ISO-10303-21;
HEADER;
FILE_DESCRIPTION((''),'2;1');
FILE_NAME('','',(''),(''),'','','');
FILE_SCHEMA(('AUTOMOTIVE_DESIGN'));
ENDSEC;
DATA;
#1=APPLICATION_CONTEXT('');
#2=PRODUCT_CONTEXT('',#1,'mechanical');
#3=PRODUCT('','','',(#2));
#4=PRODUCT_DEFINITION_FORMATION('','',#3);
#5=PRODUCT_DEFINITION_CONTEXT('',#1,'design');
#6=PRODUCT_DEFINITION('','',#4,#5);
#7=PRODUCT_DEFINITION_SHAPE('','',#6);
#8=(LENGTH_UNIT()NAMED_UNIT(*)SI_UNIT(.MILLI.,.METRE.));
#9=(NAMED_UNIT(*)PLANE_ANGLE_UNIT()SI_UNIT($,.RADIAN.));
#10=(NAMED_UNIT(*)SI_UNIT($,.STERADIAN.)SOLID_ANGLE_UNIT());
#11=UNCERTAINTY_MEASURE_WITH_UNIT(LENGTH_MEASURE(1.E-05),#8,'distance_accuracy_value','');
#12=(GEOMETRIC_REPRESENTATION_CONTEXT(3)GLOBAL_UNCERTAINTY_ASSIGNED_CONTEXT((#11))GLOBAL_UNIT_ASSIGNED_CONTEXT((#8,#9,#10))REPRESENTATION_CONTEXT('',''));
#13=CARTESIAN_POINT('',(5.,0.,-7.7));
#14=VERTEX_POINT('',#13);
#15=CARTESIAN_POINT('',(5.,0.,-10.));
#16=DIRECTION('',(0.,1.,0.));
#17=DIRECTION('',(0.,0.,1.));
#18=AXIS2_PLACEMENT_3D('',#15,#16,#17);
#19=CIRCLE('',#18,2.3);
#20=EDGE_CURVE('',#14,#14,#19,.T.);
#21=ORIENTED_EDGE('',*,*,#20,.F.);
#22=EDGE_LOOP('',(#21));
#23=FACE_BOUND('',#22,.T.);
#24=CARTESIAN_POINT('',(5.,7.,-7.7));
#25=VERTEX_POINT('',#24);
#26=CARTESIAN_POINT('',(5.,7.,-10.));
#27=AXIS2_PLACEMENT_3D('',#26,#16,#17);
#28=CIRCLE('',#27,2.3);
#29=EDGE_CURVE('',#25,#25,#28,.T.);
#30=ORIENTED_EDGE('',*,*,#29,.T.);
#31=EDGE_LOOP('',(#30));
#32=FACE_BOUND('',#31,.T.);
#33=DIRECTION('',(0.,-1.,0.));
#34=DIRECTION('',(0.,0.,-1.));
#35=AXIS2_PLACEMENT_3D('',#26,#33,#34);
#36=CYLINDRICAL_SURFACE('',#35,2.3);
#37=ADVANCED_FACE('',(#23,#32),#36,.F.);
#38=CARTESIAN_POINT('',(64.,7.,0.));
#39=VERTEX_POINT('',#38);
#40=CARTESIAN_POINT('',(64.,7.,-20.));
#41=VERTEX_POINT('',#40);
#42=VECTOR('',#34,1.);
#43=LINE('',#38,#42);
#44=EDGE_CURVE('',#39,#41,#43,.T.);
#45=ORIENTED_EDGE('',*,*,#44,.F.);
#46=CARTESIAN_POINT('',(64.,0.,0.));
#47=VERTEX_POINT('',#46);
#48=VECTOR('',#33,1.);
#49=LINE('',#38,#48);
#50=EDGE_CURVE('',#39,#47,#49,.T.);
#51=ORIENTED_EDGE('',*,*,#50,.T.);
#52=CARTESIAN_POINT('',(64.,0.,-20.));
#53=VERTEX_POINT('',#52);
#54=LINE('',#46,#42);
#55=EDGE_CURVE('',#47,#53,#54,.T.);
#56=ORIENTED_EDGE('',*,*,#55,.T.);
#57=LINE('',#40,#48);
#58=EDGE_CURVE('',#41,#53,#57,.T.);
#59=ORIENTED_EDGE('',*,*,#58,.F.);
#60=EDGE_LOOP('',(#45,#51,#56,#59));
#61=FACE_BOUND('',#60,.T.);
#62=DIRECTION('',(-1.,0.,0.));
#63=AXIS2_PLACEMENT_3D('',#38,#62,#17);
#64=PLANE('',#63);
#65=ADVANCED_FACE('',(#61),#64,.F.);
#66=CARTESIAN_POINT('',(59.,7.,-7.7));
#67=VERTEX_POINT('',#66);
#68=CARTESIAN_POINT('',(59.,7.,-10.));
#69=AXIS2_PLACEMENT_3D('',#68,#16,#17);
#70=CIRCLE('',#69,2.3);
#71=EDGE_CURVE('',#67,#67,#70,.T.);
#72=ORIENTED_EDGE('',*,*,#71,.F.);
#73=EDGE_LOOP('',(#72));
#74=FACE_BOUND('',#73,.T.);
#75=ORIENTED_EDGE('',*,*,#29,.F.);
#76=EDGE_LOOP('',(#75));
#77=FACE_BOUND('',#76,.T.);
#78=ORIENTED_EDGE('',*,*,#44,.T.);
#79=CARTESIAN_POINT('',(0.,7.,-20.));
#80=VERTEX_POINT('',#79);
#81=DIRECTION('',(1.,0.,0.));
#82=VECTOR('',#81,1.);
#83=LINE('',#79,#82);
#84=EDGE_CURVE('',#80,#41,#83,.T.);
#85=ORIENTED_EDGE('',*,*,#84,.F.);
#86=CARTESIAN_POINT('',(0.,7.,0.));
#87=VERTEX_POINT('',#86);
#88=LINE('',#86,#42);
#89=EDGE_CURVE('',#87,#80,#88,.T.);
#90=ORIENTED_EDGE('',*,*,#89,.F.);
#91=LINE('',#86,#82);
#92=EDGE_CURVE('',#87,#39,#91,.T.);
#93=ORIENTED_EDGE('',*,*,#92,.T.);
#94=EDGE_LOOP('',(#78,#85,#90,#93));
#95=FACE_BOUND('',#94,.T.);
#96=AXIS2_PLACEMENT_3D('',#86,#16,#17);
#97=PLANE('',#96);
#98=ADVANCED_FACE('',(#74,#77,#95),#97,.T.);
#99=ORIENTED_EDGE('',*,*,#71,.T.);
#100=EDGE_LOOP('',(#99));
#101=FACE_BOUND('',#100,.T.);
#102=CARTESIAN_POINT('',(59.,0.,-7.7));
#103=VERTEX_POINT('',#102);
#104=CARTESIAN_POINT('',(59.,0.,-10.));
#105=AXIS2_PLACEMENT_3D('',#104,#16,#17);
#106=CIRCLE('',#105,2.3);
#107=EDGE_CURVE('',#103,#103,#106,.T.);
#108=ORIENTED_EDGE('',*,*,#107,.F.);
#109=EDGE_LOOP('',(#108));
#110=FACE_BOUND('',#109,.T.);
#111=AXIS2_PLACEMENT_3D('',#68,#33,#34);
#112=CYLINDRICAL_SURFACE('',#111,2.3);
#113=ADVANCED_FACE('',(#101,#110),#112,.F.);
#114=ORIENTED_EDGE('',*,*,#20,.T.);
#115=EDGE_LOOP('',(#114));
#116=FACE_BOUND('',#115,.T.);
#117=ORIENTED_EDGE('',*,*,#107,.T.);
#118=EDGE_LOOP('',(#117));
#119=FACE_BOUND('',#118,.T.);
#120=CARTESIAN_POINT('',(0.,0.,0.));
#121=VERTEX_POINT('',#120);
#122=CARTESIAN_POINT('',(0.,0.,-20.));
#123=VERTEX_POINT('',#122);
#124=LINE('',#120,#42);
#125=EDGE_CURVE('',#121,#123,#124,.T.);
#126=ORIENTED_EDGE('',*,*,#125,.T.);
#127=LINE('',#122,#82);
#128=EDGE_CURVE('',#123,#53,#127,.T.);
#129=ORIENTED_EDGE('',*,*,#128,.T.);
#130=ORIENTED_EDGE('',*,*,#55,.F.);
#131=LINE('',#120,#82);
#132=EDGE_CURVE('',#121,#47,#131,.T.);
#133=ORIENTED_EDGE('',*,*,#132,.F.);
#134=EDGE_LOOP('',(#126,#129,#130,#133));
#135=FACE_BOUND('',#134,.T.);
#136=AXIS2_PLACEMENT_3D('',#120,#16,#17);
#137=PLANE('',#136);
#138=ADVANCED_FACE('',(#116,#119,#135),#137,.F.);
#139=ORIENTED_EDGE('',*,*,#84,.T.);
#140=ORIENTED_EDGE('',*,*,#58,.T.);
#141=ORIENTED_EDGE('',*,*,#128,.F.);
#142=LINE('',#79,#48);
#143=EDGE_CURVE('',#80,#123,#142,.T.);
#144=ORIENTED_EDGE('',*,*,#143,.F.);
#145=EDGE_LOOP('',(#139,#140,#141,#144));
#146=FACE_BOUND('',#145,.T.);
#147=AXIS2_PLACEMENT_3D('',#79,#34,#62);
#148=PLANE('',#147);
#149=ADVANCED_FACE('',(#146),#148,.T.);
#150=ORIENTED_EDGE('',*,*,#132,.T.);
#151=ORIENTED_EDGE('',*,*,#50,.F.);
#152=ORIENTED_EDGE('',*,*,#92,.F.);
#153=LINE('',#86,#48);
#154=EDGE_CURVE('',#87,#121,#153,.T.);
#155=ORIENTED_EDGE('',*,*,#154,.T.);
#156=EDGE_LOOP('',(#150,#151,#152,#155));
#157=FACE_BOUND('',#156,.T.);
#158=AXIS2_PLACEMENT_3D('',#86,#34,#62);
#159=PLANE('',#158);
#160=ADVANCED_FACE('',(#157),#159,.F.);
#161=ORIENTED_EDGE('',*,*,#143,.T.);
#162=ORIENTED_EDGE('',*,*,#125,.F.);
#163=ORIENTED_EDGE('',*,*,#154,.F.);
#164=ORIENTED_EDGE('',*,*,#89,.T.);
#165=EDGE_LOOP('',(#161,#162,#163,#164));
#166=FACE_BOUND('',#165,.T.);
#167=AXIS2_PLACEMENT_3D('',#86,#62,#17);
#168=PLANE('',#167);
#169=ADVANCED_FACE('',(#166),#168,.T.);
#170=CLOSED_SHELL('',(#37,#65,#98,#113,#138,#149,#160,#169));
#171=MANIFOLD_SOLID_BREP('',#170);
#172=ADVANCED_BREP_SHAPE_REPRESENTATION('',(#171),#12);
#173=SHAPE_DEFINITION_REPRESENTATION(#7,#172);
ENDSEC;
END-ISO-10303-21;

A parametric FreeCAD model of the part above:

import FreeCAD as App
import Part
import Sketcher

V = App.Vector


def add_polygon(sketch, points):
    """Adds a closed chain of lines whose ends are joined by coincident constraints."""
    first, n = sketch.GeometryCount, len(points)
    for a, b in zip(points, points[1:] + points[:1]):
        sketch.addGeometry(Part.LineSegment(App.Vector(*a, 0), App.Vector(*b, 0)), False)
    for i in range(n):
        sketch.addConstraint(Sketcher.Constraint("Coincident", first + i, 2, first + (i + 1) % n, 1))

doc = App.newDocument("Part")
params = doc.addObject("Spreadsheet::Sheet", "Params")
for row, (alias, value) in enumerate([
    ("sketch1_diameter", "4.6 mm"),
    ("sketch1_width", "64 mm"),
    ("sketch1_height", "20 mm"),
    ("pad1_length", "7 mm"),
], start=1):
    params.set(f"A{row}", alias)
    params.set(f"B{row}", "=" + value)
    params.setAlias(f"B{row}", alias)

body = doc.addObject("PartDesign::Body", "Body")

sketch1 = body.newObject("Sketcher::SketchObject", "Sketch")
sketch1.AttachmentSupport = (doc.getObject("XZ_Plane"), [""])
sketch1.MapMode = "FlatFace"
add_polygon(sketch1, [(0, -20), (0, 0), (64, 0), (64, -20)])
sketch1.addGeometry(Part.Circle(V(5, -10, 0), V(0, 0, 1), 2.3), False)
sketch1.addGeometry(Part.Circle(V(59, -10, 0), V(0, 0, 1), 2.3), False)
sketch1.addConstraint([
    Sketcher.Constraint("Vertical", 0),
    Sketcher.Constraint("Horizontal", 1),
    Sketcher.Constraint("Vertical", 2),
    Sketcher.Constraint("Horizontal", 3),
    Sketcher.Constraint("Coincident", 0, 2, -1, 1),
    Sketcher.Constraint("Equal", 4, 5),
    Sketcher.Constraint("Horizontal", 4, 3, 5, 3),
    Sketcher.Constraint("Diameter", 4, 4.6),
    Sketcher.Constraint("DistanceX", 1, 1, 1, 2, 64.0),
    Sketcher.Constraint("DistanceY", 0, 1, 0, 2, 20.0),
    Sketcher.Constraint("DistanceX", -1, 1, 4, 3, 5.0),
    Sketcher.Constraint("DistanceY", 4, 3, -1, 1, 10.0),
    Sketcher.Constraint("DistanceX", -1, 1, 5, 3, 59.0),
])
sketch1.setExpression("Constraints[11]", "Params.sketch1_diameter")
sketch1.setExpression("Constraints[12]", "Params.sketch1_width")
sketch1.setExpression("Constraints[13]", "Params.sketch1_height")
pad1 = body.newObject("PartDesign::Pad", "Pad")
pad1.Profile = sketch1
pad1.setExpression("Length", "Params.pad1_length")
pad1.Reversed = True

doc.recompute()
